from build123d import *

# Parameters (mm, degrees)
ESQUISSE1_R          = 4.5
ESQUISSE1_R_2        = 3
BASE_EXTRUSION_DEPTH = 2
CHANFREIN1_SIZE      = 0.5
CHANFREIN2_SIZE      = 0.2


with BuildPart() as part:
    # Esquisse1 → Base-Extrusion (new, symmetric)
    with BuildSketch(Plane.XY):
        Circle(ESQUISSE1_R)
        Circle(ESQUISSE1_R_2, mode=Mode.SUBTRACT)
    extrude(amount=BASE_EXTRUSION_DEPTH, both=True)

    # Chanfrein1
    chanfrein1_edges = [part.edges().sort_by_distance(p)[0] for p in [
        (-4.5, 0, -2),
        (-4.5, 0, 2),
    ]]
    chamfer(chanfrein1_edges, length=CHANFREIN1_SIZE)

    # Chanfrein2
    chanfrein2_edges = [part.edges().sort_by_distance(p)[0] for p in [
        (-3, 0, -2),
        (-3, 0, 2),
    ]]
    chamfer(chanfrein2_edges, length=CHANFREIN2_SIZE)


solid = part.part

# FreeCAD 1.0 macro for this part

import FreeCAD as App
import Part
import Sketcher


def edges_at(feature, points):
    """Names of the edges that pass closest to the given points."""
    edges = feature.Shape.Edges
    near = lambda p: min(range(len(edges)), key=lambda i: edges[i].distToShape(Part.Vertex(*p))[0])
    return sorted({f"Edge{near(p) + 1}" for p in points})

doc = App.newDocument("Part")
body = doc.addObject("PartDesign::Body", "Body")

# Sketch on XY plane
sketch1 = body.newObject("Sketcher::SketchObject", "Sketch")
sketch1.AttachmentSupport = (doc.getObject("XY_Plane"), [""])
sketch1.MapMode = "FlatFace"
sketch1.addGeometry([
    Part.Circle(App.Vector(0, 0, 0), App.Vector(0, 0, 1), 4.5),
    Part.Circle(App.Vector(0, 0, 0), App.Vector(0, 0, 1), 3),
], False)
sketch1.addConstraint([
    Sketcher.Constraint("Coincident", 0, 3, -1, 1),
    Sketcher.Constraint("Coincident", 1, 3, -1, 1),
    Sketcher.Constraint("Diameter", 0, 9.0),
    Sketcher.Constraint("Diameter", 1, 6.0),
])
pad1 = body.newObject("PartDesign::Pad", "Pad")
pad1.Profile = sketch1
pad1.Length = 4
pad1.Midplane = True
doc.recompute()

chamfer = body.newObject("PartDesign::Chamfer", "Chamfer")
chamfer.Base = (pad1, edges_at(pad1, [(-4.5, 0, -2), (-4.5, 0, 2)]))
chamfer.Size = 0.5
doc.recompute()

chamfer2 = body.newObject("PartDesign::Chamfer", "Chamfer001")
chamfer2.Base = (chamfer, edges_at(chamfer, [(-3, 0, -2), (-3, 0, 2)]))
chamfer2.Size = 0.2

doc.recompute()
